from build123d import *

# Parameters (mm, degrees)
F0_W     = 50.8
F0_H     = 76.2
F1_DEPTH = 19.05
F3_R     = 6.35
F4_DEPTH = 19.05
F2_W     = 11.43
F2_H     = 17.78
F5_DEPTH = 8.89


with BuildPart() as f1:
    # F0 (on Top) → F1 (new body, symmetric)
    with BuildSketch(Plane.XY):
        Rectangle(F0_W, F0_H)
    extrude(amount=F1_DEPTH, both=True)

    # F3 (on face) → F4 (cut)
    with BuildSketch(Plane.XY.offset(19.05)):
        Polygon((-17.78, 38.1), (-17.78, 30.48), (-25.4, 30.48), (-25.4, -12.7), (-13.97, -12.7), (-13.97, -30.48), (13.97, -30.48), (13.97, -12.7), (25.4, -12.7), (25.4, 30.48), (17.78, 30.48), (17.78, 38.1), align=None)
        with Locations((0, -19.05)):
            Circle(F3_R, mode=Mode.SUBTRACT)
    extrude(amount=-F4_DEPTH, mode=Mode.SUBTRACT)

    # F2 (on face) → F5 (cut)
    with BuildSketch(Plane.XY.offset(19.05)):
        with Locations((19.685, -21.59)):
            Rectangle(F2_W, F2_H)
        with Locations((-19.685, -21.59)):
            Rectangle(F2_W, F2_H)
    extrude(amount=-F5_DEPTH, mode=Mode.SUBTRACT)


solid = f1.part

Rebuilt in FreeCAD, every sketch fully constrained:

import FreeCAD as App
import Part
import Sketcher
Q = App.Units.Quantity


def add_polygon(sketch, points):
    """Adds a closed chain of lines whose ends are joined by coincident constraints."""
    first, n = sketch.GeometryCount, len(points)
    for a, b in zip(points, points[1:] + points[:1]):
        sketch.addGeometry(Part.LineSegment(App.Vector(*a, 0), App.Vector(*b, 0)), False)
    for i in range(n):
        sketch.addConstraint(Sketcher.Constraint("Coincident", first + i, 2, first + (i + 1) % n, 1))

doc = App.newDocument("Part")
params = doc.addObject("Spreadsheet::Sheet", "Params")
for row, (alias, value) in enumerate([
    ("sketch1_width", "2 in"),
    ("sketch1_height", "3 in"),
    ("pad1_length", "1.5 in"),
    ("sketch2_diameter", "0.5 in"),
    ("sketch2_width", "0.3 in"),
    ("sketch2_width2", "1.1 in"),
    ("sketch2_width3", "1.4 in"),
    ("sketch2_height", "1.7 in"),
    ("pocket1_length", "0.75 in"),
    ("sketch3_height", "0.7 in"),
    ("sketch3_width", "0.45 in"),
    ("pocket2_length", "0.35 in"),
], start=1):
    params.set(f"A{row}", alias)
    params.set(f"B{row}", "=" + value)
    params.setAlias(f"B{row}", alias)

body = doc.addObject("PartDesign::Body", "Body")

sketch1 = body.newObject("Sketcher::SketchObject", "Sketch")
sketch1.AttachmentSupport = (doc.getObject("XY_Plane"), [""])
sketch1.MapMode = "FlatFace"
add_polygon(sketch1, [(-25, 38), (-25, -38), (25, -38), (25, 38)])
sketch1.addConstraint(Sketcher.Constraint("Vertical", 0))
sketch1.addConstraint(Sketcher.Constraint("Horizontal", 1))
sketch1.addConstraint(Sketcher.Constraint("Vertical", 2))
sketch1.addConstraint(Sketcher.Constraint("Horizontal", 3))
sketch1.addConstraint(Sketcher.Constraint("Symmetric", 0, 2, 2, 2, -1, 1))
sketch1.addConstraint(Sketcher.Constraint("DistanceX", 1, 1, 1, 2, Q("2 in")))
sketch1.addConstraint(Sketcher.Constraint("DistanceY", 0, 2, 0, 1, Q("3 in")))
sketch1.setExpression("Constraints[9]", "Params.sketch1_width")
sketch1.setExpression("Constraints[10]", "Params.sketch1_height")
pad1 = body.newObject("PartDesign::Pad", "Pad")
pad1.Profile = sketch1
pad1.setExpression("Length", "Params.pad1_length")
pad1.Midplane = True

sketch2 = body.newObject("Sketcher::SketchObject", "Sketch001")
sketch2.AttachmentSupport = (doc.getObject("XY_Plane"), [""])
sketch2.MapMode = "FlatFace"
sketch2.AttachmentOffset = App.Placement(App.Vector(0, 0, 0.75 * 25.4), App.Rotation())
add_polygon(sketch2, [(-18, 38), (-18, 30), (-25, 30), (-25, -13), (-14, -13), (-14, -30), (14, -30), (14, -13), (25, -13), (25, 30), (18, 30), (18, 38)])
sketch2.addGeometry(Part.Circle(App.Vector(0, -19, 0), App.Vector(0, 0, 1), 6), False)
sketch2.addConstraint(Sketcher.Constraint("Vertical", 0))
sketch2.addConstraint(Sketcher.Constraint("Horizontal", 1))
sketch2.addConstraint(Sketcher.Constraint("Vertical", 2))
sketch2.addConstraint(Sketcher.Constraint("Horizontal", 3))
sketch2.addConstraint(Sketcher.Constraint("Vertical", 4))
sketch2.addConstraint(Sketcher.Constraint("Horizontal", 5))
sketch2.addConstraint(Sketcher.Constraint("Vertical", 6))
sketch2.addConstraint(Sketcher.Constraint("Horizontal", 7))
sketch2.addConstraint(Sketcher.Constraint("Vertical", 8))
sketch2.addConstraint(Sketcher.Constraint("Horizontal", 9))
sketch2.addConstraint(Sketcher.Constraint("Vertical", 10))
sketch2.addConstraint(Sketcher.Constraint("Horizontal", 11))
sketch2.addConstraint(Sketcher.Constraint("Symmetric", 3, 2, 6, 2, -2))
sketch2.addConstraint(Sketcher.Constraint("Symmetric", 1, 2, 8, 2, -2))
sketch2.addConstraint(Sketcher.Constraint("PointOnObject", 12, 3, -2))
sketch2.addConstraint(Sketcher.Constraint("Equal", 1, 9))
sketch2.addConstraint(Sketcher.Constraint("Equal", 9, 0))
sketch2.addConstraint(Sketcher.Constraint("Diameter", 12, Q("0.5 in")))
sketch2.addConstraint(Sketcher.Constraint("DistanceX", 1, 2, 1, 1, Q("0.3 in")))
sketch2.addConstraint(Sketcher.Constraint("DistanceX", 5, 1, 5, 2, Q("1.1 in")))
sketch2.addConstraint(Sketcher.Constraint("DistanceX", 11, 2, 11, 1, Q("1.4 in")))
sketch2.addConstraint(Sketcher.Constraint("DistanceY", 2, 2, 2, 1, Q("1.7 in")))
sketch2.addConstraint(Sketcher.Constraint("DistanceY", 4, 2, 4, 1, Q("0.7 in")))
sketch2.addConstraint(Sketcher.Constraint("DistanceY", -1, 1, 0, 2, Q("1.2 in")))
sketch2.addConstraint(Sketcher.Constraint("DistanceY", 12, 3, -1, 1, Q("0.75 in")))
sketch2.setExpression("Constraints[29]", "Params.sketch2_diameter")
sketch2.setExpression("Constraints[30]", "Params.sketch2_width")
sketch2.setExpression("Constraints[31]", "Params.sketch2_width2")
sketch2.setExpression("Constraints[32]", "Params.sketch2_width3")
sketch2.setExpression("Constraints[33]", "Params.sketch2_height")
pocket1 = body.newObject("PartDesign::Pocket", "Pocket")
pocket1.Profile = sketch2
pocket1.setExpression("Length", "Params.pocket1_length")

sketch3 = body.newObject("Sketcher::SketchObject", "Sketch002")
sketch3.AttachmentSupport = (doc.getObject("XY_Plane"), [""])
sketch3.MapMode = "FlatFace"
sketch3.AttachmentOffset = App.Placement(App.Vector(0, 0, 0.75 * 25.4), App.Rotation())
add_polygon(sketch3, [(14, -13), (14, -30), (25, -30), (25, -13)])
add_polygon(sketch3, [(-25, -13), (-25, -30), (-14, -30), (-14, -13)])
sketch3.addConstraint(Sketcher.Constraint("Vertical", 0))
sketch3.addConstraint(Sketcher.Constraint("Horizontal", 1))
sketch3.addConstraint(Sketcher.Constraint("Vertical", 2))
sketch3.addConstraint(Sketcher.Constraint("Horizontal", 3))
sketch3.addConstraint(Sketcher.Constraint("Vertical", 4))
sketch3.addConstraint(Sketcher.Constraint("Horizontal", 5))
sketch3.addConstraint(Sketcher.Constraint("Vertical", 6))
sketch3.addConstraint(Sketcher.Constraint("Horizontal", 7))
sketch3.addConstraint(Sketcher.Constraint("Symmetric", 1, 2, 4, 2, -2))
sketch3.addConstraint(Sketcher.Constraint("Symmetric", 3, 2, 6, 2, -2))
sketch3.addConstraint(Sketcher.Constraint("DistanceY", 0, 2, 0, 1, Q("0.7 in")))
sketch3.addConstraint(Sketcher.Constraint("DistanceX", -1, 1, 1, 2, Q("1 in")))
sketch3.addConstraint(Sketcher.Constraint("DistanceX", 1, 1, 1, 2, Q("0.45 in")))
sketch3.addConstraint(Sketcher.Constraint("DistanceY", 0, 2, -1, 1, Q("1.2 in")))
sketch3.setExpression("Constraints[18]", "Params.sketch3_height")
sketch3.setExpression("Constraints[20]", "Params.sketch3_width")
pocket2 = body.newObject("PartDesign::Pocket", "Pocket001")
pocket2.Profile = sketch3
pocket2.setExpression("Length", "Params.pocket2_length")

doc.recompute()
